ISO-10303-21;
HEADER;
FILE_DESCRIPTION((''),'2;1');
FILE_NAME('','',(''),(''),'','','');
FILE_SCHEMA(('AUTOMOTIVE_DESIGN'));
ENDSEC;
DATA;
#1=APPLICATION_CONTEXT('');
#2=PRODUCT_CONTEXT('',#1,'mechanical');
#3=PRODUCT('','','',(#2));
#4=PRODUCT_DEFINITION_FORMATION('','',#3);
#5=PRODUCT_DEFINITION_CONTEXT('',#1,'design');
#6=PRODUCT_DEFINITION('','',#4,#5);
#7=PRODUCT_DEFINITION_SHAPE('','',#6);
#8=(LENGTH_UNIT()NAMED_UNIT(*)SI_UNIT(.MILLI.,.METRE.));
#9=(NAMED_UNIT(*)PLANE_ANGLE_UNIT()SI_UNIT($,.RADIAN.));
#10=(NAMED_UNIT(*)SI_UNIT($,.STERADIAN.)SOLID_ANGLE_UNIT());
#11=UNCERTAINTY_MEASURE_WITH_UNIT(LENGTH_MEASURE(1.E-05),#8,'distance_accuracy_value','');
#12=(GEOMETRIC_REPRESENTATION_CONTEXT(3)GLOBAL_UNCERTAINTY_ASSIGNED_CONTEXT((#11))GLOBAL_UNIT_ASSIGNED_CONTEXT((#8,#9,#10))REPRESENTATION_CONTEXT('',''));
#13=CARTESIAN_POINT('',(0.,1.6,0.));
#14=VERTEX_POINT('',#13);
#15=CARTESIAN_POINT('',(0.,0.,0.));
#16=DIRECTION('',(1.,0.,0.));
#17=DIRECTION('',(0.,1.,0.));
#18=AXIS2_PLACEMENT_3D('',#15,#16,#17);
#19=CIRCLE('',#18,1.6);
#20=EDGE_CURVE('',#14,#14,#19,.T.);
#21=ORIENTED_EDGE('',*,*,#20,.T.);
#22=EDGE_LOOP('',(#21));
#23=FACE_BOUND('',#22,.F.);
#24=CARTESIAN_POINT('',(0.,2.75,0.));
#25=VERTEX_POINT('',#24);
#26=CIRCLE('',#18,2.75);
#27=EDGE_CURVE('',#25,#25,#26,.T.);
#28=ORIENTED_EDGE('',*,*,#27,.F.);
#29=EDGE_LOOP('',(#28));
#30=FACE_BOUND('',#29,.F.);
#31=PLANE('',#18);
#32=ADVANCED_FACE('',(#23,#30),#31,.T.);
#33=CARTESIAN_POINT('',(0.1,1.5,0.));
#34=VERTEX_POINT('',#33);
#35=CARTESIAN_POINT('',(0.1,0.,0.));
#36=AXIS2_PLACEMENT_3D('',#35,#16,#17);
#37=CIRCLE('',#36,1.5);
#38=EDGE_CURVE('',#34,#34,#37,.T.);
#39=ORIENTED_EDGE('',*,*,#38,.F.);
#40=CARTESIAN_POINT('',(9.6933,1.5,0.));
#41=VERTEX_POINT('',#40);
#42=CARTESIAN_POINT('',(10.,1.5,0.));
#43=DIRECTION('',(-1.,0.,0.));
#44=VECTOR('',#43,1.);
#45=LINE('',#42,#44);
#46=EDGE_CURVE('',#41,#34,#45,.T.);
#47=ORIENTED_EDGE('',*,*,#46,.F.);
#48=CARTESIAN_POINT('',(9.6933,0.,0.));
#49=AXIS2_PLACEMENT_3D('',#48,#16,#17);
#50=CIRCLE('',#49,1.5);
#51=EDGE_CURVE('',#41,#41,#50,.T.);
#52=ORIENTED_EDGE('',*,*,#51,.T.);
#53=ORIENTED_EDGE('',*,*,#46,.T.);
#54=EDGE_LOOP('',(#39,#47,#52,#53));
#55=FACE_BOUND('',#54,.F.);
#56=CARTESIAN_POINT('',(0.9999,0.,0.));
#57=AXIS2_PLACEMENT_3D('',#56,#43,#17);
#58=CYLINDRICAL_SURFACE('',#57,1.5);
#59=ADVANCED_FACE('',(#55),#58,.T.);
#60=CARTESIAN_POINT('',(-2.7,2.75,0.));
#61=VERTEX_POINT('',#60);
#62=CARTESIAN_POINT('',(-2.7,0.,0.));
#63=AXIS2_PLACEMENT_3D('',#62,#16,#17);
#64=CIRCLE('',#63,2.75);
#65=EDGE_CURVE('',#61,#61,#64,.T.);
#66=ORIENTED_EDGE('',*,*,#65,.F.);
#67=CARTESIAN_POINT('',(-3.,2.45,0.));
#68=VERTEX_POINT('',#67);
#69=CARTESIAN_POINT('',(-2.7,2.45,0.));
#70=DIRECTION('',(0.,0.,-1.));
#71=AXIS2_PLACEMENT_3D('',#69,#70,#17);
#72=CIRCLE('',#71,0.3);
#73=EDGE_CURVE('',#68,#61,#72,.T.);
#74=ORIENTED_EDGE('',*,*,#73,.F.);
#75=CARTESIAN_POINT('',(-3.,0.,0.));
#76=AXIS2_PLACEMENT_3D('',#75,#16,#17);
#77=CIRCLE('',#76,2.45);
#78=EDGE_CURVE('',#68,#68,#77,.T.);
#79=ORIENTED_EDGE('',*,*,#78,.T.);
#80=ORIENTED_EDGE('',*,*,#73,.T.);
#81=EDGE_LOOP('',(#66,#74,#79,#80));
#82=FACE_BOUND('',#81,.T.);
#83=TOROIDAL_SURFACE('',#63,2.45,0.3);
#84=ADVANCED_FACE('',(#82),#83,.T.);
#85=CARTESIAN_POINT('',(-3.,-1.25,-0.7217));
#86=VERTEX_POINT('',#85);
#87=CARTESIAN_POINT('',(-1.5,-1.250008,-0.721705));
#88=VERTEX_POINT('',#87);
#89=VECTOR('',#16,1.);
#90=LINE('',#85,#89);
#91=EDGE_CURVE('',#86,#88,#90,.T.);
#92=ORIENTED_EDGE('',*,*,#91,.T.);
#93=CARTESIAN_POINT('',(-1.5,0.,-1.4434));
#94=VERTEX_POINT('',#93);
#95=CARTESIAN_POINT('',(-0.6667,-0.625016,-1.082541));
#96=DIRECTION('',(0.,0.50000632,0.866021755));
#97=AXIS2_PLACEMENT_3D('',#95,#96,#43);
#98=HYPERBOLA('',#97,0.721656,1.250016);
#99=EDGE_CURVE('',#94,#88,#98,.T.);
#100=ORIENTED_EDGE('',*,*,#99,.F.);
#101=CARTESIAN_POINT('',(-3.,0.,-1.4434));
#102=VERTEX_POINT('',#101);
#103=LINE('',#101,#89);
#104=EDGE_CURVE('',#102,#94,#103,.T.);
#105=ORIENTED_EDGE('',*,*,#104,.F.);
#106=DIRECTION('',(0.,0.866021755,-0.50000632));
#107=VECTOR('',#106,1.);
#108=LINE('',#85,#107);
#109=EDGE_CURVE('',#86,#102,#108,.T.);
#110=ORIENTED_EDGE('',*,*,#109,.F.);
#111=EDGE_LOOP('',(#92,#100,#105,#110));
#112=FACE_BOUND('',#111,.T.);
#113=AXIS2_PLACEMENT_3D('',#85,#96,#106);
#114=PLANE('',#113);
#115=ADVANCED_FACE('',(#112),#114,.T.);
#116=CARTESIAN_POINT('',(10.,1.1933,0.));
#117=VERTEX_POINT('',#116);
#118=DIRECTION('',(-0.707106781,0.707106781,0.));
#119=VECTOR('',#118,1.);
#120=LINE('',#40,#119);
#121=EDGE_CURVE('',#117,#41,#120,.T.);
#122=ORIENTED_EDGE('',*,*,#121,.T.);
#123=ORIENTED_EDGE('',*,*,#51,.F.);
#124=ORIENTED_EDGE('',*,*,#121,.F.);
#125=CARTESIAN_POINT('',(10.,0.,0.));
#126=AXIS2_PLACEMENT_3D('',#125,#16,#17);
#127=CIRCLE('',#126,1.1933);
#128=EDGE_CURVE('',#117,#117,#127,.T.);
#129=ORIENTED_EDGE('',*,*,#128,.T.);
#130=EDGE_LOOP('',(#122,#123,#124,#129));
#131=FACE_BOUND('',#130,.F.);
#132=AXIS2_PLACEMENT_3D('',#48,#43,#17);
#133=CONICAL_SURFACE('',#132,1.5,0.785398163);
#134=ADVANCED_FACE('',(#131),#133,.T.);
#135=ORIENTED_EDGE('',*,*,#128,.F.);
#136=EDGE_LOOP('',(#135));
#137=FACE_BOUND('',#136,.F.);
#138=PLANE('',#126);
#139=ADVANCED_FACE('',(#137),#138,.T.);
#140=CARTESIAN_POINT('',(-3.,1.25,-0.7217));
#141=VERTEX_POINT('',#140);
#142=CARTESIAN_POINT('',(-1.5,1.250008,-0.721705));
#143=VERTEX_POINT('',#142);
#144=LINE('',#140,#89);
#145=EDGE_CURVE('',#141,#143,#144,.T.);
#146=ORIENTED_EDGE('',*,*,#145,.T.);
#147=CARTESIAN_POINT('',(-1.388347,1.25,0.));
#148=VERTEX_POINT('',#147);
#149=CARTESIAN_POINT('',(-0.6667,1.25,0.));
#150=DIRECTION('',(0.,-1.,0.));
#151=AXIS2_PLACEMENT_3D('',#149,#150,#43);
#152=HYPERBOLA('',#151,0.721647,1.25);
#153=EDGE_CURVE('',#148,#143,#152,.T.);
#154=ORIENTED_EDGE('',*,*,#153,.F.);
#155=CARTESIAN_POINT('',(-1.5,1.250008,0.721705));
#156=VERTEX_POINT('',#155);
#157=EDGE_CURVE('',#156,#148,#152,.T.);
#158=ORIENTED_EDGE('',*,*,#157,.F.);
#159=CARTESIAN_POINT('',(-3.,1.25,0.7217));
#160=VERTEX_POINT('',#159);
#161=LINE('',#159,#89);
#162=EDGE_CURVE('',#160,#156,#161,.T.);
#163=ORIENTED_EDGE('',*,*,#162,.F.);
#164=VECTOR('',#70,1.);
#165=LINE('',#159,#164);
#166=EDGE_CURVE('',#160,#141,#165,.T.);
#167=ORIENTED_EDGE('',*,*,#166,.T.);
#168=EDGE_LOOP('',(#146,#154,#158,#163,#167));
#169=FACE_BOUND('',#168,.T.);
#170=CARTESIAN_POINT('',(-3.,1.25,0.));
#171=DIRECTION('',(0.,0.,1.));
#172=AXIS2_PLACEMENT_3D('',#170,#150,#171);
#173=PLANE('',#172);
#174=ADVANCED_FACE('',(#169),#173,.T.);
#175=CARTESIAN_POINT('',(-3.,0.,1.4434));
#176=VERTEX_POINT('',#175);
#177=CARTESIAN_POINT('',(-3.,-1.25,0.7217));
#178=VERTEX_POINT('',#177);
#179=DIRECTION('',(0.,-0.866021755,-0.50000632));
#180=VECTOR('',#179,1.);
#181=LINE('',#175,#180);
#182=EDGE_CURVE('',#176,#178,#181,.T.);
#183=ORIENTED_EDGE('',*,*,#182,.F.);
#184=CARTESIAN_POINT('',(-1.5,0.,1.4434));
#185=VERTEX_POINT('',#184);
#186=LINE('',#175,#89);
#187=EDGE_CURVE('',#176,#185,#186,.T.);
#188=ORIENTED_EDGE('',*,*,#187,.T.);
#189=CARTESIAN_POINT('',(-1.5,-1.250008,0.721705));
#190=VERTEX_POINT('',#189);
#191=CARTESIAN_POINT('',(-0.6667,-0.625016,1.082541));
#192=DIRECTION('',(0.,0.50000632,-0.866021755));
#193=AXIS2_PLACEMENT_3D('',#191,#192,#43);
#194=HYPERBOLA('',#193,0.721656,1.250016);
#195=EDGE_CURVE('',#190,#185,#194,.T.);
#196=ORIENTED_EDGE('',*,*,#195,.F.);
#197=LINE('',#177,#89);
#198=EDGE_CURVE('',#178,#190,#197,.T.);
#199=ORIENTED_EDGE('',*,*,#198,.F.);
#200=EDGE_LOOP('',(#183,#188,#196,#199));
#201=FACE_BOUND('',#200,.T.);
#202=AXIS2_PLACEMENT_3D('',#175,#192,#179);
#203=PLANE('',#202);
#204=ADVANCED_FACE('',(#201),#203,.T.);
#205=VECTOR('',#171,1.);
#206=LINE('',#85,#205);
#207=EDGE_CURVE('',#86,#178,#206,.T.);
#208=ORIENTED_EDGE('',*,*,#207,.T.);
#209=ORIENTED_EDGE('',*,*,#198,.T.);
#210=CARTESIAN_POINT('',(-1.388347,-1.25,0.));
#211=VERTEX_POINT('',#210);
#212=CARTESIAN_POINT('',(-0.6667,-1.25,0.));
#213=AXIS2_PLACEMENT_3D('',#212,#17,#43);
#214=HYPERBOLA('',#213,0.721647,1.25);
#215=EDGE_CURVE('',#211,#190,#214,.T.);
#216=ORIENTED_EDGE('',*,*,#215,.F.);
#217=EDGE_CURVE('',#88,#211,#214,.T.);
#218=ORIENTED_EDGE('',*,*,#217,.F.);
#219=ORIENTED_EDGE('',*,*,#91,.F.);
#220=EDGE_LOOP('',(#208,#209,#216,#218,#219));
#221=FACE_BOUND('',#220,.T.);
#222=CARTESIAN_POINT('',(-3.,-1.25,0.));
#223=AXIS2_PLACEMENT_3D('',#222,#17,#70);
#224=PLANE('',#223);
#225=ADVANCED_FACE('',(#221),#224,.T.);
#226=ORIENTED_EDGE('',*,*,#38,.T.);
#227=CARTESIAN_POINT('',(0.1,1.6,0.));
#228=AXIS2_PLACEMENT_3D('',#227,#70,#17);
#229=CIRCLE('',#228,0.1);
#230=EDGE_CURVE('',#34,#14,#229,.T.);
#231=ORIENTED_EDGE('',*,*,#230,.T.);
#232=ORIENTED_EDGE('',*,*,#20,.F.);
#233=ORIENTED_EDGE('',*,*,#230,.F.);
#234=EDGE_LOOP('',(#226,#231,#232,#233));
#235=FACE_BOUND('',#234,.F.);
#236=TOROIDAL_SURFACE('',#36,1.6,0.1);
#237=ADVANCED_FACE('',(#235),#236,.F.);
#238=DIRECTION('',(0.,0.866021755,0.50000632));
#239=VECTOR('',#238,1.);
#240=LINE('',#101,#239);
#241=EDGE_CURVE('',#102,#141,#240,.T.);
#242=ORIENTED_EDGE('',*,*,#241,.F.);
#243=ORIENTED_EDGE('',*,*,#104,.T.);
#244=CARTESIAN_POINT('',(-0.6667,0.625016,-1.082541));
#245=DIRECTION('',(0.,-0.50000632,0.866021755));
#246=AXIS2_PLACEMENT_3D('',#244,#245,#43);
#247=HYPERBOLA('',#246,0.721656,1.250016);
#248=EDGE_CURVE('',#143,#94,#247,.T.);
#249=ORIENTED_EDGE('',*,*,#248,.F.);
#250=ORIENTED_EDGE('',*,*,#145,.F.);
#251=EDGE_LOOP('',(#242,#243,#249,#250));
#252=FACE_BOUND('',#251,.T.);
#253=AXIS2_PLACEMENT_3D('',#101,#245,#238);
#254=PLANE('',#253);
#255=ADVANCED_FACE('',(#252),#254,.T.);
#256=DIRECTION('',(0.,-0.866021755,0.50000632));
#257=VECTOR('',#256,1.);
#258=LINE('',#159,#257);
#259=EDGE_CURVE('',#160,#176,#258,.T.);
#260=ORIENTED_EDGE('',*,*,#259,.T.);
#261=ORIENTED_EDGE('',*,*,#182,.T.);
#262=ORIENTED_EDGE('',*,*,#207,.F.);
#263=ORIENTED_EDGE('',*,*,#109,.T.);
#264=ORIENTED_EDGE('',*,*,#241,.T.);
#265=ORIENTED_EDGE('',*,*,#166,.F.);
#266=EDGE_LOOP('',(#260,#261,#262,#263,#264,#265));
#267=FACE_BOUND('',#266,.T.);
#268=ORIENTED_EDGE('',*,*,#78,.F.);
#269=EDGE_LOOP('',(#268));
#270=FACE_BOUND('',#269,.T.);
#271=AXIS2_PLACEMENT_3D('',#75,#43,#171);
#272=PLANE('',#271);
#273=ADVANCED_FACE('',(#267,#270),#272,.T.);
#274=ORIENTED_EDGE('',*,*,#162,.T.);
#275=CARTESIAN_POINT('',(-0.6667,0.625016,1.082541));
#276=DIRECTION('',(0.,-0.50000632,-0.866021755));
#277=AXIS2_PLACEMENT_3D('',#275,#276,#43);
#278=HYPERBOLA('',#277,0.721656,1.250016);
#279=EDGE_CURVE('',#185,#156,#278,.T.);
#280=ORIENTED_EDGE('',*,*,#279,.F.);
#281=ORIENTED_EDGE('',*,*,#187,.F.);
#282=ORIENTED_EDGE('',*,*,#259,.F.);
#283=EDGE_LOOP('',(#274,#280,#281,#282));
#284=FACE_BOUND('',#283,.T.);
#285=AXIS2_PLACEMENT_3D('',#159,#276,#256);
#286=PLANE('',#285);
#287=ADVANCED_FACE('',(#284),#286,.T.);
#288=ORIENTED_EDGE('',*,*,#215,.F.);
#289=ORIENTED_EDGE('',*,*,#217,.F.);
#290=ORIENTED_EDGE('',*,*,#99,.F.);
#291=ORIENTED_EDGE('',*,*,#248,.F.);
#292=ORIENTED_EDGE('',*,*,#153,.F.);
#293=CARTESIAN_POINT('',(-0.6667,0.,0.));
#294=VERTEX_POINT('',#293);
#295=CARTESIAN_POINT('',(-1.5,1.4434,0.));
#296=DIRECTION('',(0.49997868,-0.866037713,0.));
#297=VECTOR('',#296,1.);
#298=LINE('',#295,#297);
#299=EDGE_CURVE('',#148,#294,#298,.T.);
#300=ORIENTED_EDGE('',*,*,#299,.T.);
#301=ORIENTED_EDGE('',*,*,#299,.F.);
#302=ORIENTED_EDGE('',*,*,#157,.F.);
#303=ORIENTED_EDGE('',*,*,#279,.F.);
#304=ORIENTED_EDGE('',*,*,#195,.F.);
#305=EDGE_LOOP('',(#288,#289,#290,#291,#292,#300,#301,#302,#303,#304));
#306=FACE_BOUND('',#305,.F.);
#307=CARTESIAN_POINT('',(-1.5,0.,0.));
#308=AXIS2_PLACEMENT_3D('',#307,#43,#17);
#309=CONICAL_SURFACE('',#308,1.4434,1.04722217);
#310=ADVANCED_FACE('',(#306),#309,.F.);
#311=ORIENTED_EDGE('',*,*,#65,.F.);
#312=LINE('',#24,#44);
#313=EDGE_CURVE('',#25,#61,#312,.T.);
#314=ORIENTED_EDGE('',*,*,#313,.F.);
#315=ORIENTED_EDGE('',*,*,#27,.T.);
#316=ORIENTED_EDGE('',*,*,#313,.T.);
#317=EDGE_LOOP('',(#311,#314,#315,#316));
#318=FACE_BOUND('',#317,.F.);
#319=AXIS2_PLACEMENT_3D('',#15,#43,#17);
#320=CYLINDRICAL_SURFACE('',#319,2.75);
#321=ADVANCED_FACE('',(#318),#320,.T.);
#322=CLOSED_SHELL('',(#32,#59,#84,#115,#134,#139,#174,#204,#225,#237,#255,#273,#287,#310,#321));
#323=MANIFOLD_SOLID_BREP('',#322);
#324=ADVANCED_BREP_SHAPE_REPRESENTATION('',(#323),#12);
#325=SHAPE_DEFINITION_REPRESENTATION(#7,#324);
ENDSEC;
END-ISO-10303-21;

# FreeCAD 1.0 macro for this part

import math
import FreeCAD as App
import Part
import Sketcher
Q = App.Units.Quantity


def edges_at(feature, points):
    """Names of the edges that pass closest to the given points."""
    edges = feature.Shape.Edges
    near = lambda p: min(range(len(edges)), key=lambda i: edges[i].distToShape(Part.Vertex(*p))[0])
    return sorted({f"Edge{near(p) + 1}" for p in points})


def add_polygon(sketch, points):
    """Adds a closed chain of lines whose ends are joined by coincident constraints."""
    first, n = sketch.GeometryCount, len(points)
    for a, b in zip(points, points[1:] + points[:1]):
        sketch.addGeometry(Part.LineSegment(App.Vector(*a, 0), App.Vector(*b, 0)), False)
    for i in range(n):
        sketch.addConstraint(Sketcher.Constraint("Coincident", first + i, 2, first + (i + 1) % n, 1))

doc = App.newDocument("Part")
body = doc.addObject("PartDesign::Body", "Body")

sketch1 = body.newObject("Sketcher::SketchObject", "Sketch")
sketch1.AttachmentSupport = (doc.getObject("XY_Plane"), [""])
sketch1.MapMode = "FlatFace"
add_polygon(sketch1, [(-1.5, 1.4), (-0.7, 0), (10, 0), (10, 1.5), (0, 1.5), (0, 2.8), (-3, 2.8), (-3, 1.4)])
sketch1.addConstraint([
    Sketcher.Constraint("Horizontal", 1),
    Sketcher.Constraint("Vertical", 2),
    Sketcher.Constraint("Horizontal", 3),
    Sketcher.Constraint("Vertical", 4),
    Sketcher.Constraint("Horizontal", 5),
    Sketcher.Constraint("Vertical", 6),
    Sketcher.Constraint("Horizontal", 7),
    Sketcher.Constraint("PointOnObject", 0, 2, -1),
    Sketcher.Constraint("PointOnObject", 3, 2, -2),
    Sketcher.Constraint("Equal", 7, 2),
    Sketcher.Constraint("DistanceX", 3, 2, 3, 1, Q("10 mm")),
    Sketcher.Constraint("DistanceX", 5, 2, 5, 1, Q("3 mm")),
    Sketcher.Constraint("DistanceX", 7, 1, 7, 2, Q("1.5 mm")),
    Sketcher.Constraint("DistanceY", 4, 1, 4, 2, Q("1.25 mm")),
    Sketcher.Constraint("DistanceX", 1, 1, 1, 2, Q("10.6667 mm")),
    Sketcher.Constraint("DistanceY", 6, 2, 6, 1, Q("1.3066 mm")),
])
revolution = body.newObject("PartDesign::Revolution", "Revolution")
revolution.Profile = sketch1
revolution.ReferenceAxis = (sketch1, ["H_Axis"])
revolution.Angle = 360

sketch2 = body.newObject("Sketcher::SketchObject", "Sketch001")
sketch2.AttachmentSupport = (doc.getObject("YZ_Plane"), [""])
sketch2.MapMode = "FlatFace"
sketch2.AttachmentOffset = App.Placement(App.Vector(0, 0, -3), App.Rotation())
sketch2.addGeometry([
    Part.LineSegment(App.Vector(1.2, 0.7, 0), App.Vector(0, 1.4, 0)),
    Part.ArcOfCircle(Part.Circle(App.Vector(0, 0, 0), App.Vector(0, 0, 1), 1.4), math.radians(30), math.radians(90)),
    Part.ArcOfCircle(Part.Circle(App.Vector(0, 0, 0), App.Vector(0, 0, 1), 1.4), math.radians(90), math.radians(150)),
    Part.LineSegment(App.Vector(0, 1.4, 0), App.Vector(-1.2, 0.7, 0)),
    Part.ArcOfCircle(Part.Circle(App.Vector(0, 0, 0), App.Vector(0, 0, 1), 1.4), math.radians(-30), math.radians(30)),
    Part.LineSegment(App.Vector(1.2, 0.7, 0), App.Vector(1.2, -0.7, 0)),
    Part.LineSegment(App.Vector(-1.2, 0.7, 0), App.Vector(-1.2, -0.7, 0)),
    Part.ArcOfCircle(Part.Circle(App.Vector(0, 0, 0), App.Vector(0, 0, 1), 1.4), math.radians(150), math.radians(210)),
    Part.LineSegment(App.Vector(-1.2, -0.7, 0), App.Vector(0, -1.4, 0)),
    Part.ArcOfCircle(Part.Circle(App.Vector(0, 0, 0), App.Vector(0, 0, 1), 1.4), math.radians(-150), math.radians(-90)),
    Part.ArcOfCircle(Part.Circle(App.Vector(0, 0, 0), App.Vector(0, 0, 1), 1.4), math.radians(-90), math.radians(-30)),
    Part.LineSegment(App.Vector(0, -1.4, 0), App.Vector(1.2, -0.7, 0)),
], False)
sketch2.addConstraint([
    Sketcher.Constraint("Coincident", 0, 1, 1, 1),
    Sketcher.Constraint("Coincident", 1, 2, 0, 2),
    Sketcher.Constraint("Coincident", 2, 1, 3, 1),
    Sketcher.Constraint("Coincident", 3, 2, 2, 2),
    Sketcher.Constraint("Coincident", 4, 1, 5, 2),
    Sketcher.Constraint("Coincident", 5, 1, 4, 2),
    Sketcher.Constraint("Coincident", 6, 1, 7, 1),
    Sketcher.Constraint("Coincident", 7, 2, 6, 2),
    Sketcher.Constraint("Coincident", 8, 1, 9, 1),
    Sketcher.Constraint("Coincident", 9, 2, 8, 2),
    Sketcher.Constraint("Coincident", 10, 1, 11, 1),
    Sketcher.Constraint("Coincident", 11, 2, 10, 2),
    Sketcher.Constraint("Vertical", 5),
    Sketcher.Constraint("Vertical", 6),
    Sketcher.Constraint("Coincident", 1, 3, -1, 1),
    Sketcher.Constraint("Coincident", 2, 3, -1, 1),
    Sketcher.Constraint("Coincident", 4, 3, -1, 1),
    Sketcher.Constraint("Coincident", 7, 3, -1, 1),
    Sketcher.Constraint("Coincident", 9, 3, -1, 1),
    Sketcher.Constraint("Coincident", 10, 3, -1, 1),
    Sketcher.Constraint("Coincident", 2, 1, 1, 2),
    Sketcher.Constraint("Coincident", 5, 1, 0, 1),
    Sketcher.Constraint("Coincident", 6, 1, 3, 2),
    Sketcher.Constraint("Coincident", 8, 1, 7, 2),
    Sketcher.Constraint("Coincident", 10, 1, 9, 2),
    Sketcher.Constraint("PointOnObject", 1, 2, -2),
    Sketcher.Constraint("PointOnObject", 9, 2, -2),
    Sketcher.Constraint("Parallel", 0, 8),
    Sketcher.Constraint("Parallel", 3, 11),
    Sketcher.Constraint("Angle", 0, Q("149.9996 deg")),
    Sketcher.Constraint("Radius", 1, Q("1.4434 mm")),
])
pad1 = body.newObject("PartDesign::Pad", "Pad")
pad1.Profile = sketch2
pad1.Type = "UpToFirst"
doc.recompute()

fillet = body.newObject("PartDesign::Fillet", "Fillet")
fillet.Base = (pad1, edges_at(pad1, [(-3, -2.75, 0)]))
fillet.Radius = 0.3
doc.recompute()

chamfer = body.newObject("PartDesign::Chamfer", "Chamfer")
chamfer.Base = (fillet, edges_at(fillet, [(10, -1.5, 0)]))
chamfer.ChamferType = "Two distances"
chamfer.Size = 0.3067
chamfer.Size2 = 0.3067
doc.recompute()

fillet2 = body.newObject("PartDesign::Fillet", "Fillet001")
fillet2.Base = (chamfer, edges_at(chamfer, [(0, -1.5, 0)]))
fillet2.Radius = 0.1

doc.recompute()
